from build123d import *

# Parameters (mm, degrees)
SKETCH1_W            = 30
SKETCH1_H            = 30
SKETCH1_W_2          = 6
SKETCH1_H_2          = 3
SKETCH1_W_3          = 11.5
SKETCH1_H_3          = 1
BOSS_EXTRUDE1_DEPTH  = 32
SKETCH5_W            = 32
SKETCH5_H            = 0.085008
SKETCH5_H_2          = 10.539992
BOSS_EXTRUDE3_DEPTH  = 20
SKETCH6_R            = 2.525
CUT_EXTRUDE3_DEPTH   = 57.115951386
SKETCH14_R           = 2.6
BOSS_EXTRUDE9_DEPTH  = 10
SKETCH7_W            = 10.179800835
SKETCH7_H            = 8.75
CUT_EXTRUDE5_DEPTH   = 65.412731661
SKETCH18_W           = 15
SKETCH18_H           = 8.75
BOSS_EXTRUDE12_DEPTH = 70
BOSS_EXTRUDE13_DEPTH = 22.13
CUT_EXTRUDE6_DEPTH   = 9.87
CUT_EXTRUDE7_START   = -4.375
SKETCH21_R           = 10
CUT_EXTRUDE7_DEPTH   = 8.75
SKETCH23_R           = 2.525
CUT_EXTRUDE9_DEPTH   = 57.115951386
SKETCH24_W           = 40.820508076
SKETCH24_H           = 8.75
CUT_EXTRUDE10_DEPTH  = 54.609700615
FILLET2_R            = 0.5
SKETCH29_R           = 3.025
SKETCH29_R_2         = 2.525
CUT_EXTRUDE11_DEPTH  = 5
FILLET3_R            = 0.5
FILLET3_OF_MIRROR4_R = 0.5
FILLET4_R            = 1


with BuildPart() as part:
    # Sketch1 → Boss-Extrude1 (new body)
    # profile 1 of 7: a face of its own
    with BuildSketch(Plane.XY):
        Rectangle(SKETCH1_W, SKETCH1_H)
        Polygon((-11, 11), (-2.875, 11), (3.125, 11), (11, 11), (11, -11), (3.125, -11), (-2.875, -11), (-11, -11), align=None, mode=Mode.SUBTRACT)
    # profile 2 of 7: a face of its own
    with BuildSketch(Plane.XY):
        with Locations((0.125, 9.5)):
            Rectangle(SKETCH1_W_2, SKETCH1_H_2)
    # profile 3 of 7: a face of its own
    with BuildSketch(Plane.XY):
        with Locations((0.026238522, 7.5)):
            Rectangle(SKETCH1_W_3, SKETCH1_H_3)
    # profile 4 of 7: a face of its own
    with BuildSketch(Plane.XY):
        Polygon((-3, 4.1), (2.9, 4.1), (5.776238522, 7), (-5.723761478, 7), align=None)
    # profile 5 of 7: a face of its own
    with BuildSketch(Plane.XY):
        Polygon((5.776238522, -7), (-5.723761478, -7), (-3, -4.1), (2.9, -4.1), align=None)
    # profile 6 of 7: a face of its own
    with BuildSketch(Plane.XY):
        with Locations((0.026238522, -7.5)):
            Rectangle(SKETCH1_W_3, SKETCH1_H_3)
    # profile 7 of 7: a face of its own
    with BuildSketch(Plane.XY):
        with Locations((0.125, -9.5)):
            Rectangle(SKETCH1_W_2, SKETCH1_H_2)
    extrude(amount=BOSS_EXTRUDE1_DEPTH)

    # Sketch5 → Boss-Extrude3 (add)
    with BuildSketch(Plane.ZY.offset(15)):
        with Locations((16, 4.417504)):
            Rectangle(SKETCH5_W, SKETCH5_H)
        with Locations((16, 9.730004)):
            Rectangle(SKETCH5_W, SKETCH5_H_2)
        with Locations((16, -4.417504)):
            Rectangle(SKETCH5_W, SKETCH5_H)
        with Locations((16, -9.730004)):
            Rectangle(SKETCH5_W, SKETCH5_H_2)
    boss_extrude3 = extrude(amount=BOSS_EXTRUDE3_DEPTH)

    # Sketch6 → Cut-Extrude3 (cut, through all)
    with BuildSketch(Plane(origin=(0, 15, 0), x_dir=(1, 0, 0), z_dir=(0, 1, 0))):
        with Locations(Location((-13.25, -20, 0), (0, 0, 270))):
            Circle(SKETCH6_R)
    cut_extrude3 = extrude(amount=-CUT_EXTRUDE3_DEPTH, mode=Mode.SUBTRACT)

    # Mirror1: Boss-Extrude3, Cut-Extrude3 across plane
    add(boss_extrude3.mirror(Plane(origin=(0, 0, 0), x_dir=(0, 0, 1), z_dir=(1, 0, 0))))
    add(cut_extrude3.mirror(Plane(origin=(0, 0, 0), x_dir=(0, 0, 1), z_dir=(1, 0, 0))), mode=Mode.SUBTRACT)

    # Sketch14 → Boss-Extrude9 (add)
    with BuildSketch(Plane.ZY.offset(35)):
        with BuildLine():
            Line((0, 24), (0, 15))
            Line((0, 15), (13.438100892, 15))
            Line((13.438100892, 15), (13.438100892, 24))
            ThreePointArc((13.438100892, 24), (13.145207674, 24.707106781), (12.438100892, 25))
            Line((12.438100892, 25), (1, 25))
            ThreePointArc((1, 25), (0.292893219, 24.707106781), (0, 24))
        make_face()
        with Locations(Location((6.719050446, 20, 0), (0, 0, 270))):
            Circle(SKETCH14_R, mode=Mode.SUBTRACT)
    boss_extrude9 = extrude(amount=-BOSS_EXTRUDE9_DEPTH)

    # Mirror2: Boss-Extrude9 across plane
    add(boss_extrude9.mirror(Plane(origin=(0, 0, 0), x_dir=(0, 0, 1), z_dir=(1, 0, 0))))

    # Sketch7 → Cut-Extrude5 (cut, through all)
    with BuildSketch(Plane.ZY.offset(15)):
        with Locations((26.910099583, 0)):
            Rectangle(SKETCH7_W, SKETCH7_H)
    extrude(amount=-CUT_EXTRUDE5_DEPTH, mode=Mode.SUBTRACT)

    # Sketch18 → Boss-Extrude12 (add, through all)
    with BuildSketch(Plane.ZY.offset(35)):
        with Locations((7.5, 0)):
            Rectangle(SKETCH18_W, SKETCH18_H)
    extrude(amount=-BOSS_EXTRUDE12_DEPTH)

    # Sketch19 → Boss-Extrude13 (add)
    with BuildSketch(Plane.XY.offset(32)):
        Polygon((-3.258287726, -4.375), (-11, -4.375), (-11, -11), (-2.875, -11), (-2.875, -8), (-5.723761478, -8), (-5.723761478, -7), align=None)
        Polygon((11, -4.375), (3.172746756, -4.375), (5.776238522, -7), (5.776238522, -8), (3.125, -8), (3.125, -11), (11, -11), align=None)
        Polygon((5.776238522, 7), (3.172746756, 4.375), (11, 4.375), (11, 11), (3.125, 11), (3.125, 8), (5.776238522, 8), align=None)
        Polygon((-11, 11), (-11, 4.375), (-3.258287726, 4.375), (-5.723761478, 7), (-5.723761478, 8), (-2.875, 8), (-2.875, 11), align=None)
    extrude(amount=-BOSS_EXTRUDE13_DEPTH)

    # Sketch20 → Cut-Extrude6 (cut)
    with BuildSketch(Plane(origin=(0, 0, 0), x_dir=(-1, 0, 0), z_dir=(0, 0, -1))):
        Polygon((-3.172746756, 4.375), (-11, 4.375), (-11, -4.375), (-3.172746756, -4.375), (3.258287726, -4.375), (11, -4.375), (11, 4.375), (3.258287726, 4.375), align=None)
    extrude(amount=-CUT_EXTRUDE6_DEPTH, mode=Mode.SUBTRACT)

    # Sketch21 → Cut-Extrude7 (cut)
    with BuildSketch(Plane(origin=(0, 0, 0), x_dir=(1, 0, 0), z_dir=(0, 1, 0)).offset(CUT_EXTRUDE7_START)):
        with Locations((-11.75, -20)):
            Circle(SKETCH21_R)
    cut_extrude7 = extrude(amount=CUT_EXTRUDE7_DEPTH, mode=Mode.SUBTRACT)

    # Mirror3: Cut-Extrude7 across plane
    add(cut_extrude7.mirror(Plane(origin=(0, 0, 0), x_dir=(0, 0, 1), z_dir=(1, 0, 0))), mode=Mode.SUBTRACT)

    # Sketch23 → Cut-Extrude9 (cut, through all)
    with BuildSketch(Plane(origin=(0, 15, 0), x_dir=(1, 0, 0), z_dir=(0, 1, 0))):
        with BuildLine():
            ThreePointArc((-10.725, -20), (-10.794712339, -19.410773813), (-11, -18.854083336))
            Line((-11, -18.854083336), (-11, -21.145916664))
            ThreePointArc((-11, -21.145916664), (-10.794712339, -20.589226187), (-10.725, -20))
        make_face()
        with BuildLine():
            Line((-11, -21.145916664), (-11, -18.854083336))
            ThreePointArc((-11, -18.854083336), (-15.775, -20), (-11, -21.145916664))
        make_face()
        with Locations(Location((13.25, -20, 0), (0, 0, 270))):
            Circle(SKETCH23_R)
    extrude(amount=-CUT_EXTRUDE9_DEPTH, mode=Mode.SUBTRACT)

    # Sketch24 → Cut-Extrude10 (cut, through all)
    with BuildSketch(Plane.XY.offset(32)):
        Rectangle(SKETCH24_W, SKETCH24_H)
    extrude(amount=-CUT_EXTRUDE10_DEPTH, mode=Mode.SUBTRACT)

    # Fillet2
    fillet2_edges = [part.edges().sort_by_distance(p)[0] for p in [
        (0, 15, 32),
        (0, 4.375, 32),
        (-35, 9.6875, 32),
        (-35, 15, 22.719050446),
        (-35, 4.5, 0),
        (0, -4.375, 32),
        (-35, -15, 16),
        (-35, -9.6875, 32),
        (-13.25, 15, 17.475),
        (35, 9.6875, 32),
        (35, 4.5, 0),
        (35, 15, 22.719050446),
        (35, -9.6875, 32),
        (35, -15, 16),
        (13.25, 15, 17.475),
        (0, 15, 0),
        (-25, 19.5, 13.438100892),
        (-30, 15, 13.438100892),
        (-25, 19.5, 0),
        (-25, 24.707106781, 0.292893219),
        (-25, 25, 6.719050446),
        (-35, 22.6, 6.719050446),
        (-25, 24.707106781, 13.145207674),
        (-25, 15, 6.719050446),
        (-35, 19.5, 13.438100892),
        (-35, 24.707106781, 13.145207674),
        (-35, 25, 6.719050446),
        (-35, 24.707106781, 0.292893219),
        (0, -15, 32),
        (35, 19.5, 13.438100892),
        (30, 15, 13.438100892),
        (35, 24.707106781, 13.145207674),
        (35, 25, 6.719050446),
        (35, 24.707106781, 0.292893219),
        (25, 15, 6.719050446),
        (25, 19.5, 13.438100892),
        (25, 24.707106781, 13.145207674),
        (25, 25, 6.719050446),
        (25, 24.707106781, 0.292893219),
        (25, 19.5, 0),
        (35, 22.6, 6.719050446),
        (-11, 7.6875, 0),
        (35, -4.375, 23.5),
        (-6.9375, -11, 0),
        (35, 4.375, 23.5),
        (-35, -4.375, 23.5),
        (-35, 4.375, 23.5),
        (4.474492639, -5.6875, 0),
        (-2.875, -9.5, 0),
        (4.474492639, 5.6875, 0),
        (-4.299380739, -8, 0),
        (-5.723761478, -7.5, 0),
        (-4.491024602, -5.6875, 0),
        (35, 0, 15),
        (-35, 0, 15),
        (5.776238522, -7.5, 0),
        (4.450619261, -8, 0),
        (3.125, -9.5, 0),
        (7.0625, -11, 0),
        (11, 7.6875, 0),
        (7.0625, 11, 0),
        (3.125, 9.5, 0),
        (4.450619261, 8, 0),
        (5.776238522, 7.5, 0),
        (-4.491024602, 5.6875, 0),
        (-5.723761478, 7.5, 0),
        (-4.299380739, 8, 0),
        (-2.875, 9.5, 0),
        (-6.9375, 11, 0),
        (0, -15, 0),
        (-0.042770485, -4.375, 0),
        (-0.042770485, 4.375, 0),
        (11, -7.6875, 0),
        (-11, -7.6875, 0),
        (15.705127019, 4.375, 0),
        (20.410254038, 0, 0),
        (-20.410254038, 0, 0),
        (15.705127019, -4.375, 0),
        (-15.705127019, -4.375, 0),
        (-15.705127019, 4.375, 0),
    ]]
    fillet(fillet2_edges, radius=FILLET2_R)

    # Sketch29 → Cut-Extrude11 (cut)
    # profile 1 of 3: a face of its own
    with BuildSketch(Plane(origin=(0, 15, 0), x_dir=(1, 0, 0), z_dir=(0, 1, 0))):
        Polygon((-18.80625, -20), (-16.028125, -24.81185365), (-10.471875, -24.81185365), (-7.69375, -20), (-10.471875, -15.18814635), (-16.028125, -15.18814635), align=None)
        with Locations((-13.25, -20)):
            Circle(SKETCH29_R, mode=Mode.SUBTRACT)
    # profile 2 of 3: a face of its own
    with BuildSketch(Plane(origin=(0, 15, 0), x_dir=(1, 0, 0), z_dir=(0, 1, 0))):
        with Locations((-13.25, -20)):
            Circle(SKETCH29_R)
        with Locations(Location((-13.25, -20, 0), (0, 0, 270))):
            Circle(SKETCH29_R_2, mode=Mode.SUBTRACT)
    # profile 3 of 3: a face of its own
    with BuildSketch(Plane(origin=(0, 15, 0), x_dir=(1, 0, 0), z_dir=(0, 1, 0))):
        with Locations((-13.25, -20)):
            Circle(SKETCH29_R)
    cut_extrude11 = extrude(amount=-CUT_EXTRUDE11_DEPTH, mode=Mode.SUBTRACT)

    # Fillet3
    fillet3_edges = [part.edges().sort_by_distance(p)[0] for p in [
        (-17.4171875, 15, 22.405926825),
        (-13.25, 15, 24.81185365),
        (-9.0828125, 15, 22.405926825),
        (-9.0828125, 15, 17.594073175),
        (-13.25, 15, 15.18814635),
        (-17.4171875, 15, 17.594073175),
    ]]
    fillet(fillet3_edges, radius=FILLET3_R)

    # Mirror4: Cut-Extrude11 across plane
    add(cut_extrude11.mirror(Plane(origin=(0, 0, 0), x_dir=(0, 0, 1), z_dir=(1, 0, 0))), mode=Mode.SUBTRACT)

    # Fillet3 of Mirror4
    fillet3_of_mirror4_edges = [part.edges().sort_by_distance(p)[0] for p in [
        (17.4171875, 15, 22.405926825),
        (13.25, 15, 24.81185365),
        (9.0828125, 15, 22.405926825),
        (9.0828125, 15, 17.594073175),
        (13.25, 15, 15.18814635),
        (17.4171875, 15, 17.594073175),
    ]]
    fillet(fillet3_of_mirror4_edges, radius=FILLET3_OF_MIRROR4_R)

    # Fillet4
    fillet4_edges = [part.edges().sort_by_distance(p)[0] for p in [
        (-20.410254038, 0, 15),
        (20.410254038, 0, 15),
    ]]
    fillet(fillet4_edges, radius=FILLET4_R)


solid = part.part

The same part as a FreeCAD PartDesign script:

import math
import FreeCAD as App
import Part
import Sketcher

V = App.Vector
Q = App.Units.Quantity


def edges_at(feature, points):
    """Names of the edges that pass closest to the given points."""
    edges = feature.Shape.Edges
    near = lambda p: min(range(len(edges)), key=lambda i: edges[i].distToShape(Part.Vertex(*p))[0])
    return sorted({f"Edge{near(p) + 1}" for p in points})


def add_polygon(sketch, points):
    """Adds a closed chain of lines whose ends are joined by coincident constraints."""
    first, n = sketch.GeometryCount, len(points)
    for a, b in zip(points, points[1:] + points[:1]):
        sketch.addGeometry(Part.LineSegment(App.Vector(*a, 0), App.Vector(*b, 0)), False)
    for i in range(n):
        sketch.addConstraint(Sketcher.Constraint("Coincident", first + i, 2, first + (i + 1) % n, 1))

doc = App.newDocument("Part")
body = doc.addObject("PartDesign::Body", "Body")

# Sketch on XY plane
sketch1 = body.newObject("Sketcher::SketchObject", "Sketch")
sketch1.AttachmentSupport = (doc.getObject("XY_Plane"), [""])
sketch1.MapMode = "FlatFace"
add_polygon(sketch1, [(-15, 15), (-15, -15), (15, -15), (15, 15)])  # lines 0-3
add_polygon(sketch1, [(-11, -11), (-11, 11), (-2.9, 11), (-2.9, 8), (-5.7, 8), (-5.7, 7), (-3, 4.1), (2.9, 4.1), (5.8, 7), (5.8, 8), (3.1, 8), (3.1, 11), (11, 11), (11, -11), (3.1, -11), (3.1, -8), (5.8, -8), (5.8, -7), (2.9, -4.1), (-3, -4.1), (-5.7, -7), (-5.7, -8), (-2.9, -8), (-2.9, -11)])  # lines 4-27
sketch1.addConstraint([
    Sketcher.Constraint("Vertical", 0),
    Sketcher.Constraint("Horizontal", 1),
    Sketcher.Constraint("Vertical", 2),
    Sketcher.Constraint("Horizontal", 3),
    Sketcher.Constraint("Vertical", 4),
    Sketcher.Constraint("Horizontal", 5),
    Sketcher.Constraint("Vertical", 6),
    Sketcher.Constraint("Horizontal", 7),
    Sketcher.Constraint("Vertical", 8),
    Sketcher.Constraint("Horizontal", 10),
    Sketcher.Constraint("Vertical", 12),
    Sketcher.Constraint("Horizontal", 13),
    Sketcher.Constraint("Vertical", 14),
    Sketcher.Constraint("Horizontal", 15),
    Sketcher.Constraint("Vertical", 16),
    Sketcher.Constraint("Horizontal", 17),
    Sketcher.Constraint("Vertical", 18),
    Sketcher.Constraint("Horizontal", 19),
    Sketcher.Constraint("Vertical", 20),
    Sketcher.Constraint("Horizontal", 22),
    Sketcher.Constraint("Vertical", 24),
    Sketcher.Constraint("Horizontal", 25),
    Sketcher.Constraint("Vertical", 26),
    Sketcher.Constraint("Horizontal", 27),
    Sketcher.Constraint("Symmetric", 0, 2, 2, 2, -1, 1),
    Sketcher.Constraint("Symmetric", 4, 2, 16, 2, -1, 1),
    Sketcher.Constraint("Symmetric", 14, 2, 17, 2, -1),
    Sketcher.Constraint("Symmetric", 12, 2, 19, 2, -1),
    Sketcher.Constraint("Symmetric", 10, 2, 21, 2, -1),
    Sketcher.Constraint("Symmetric", 8, 2, 23, 2, -1),
    Sketcher.Constraint("Symmetric", 6, 2, 25, 2, -1),
    Sketcher.Constraint("Horizontal", 8, 2, 11, 2),
    Sketcher.Constraint("Horizontal", 7, 2, 12, 2),
    Sketcher.Constraint("Horizontal", 20, 2, 23, 2),
    Sketcher.Constraint("Horizontal", 17, 2, 26, 2),
    Sketcher.Constraint("Vertical", 9, 2, 22, 2),
    Sketcher.Constraint("Equal", 3, 0),
    Sketcher.Constraint("DistanceX", 1, 1, 1, 2, 30.0),
    Sketcher.Constraint("DistanceY", 4, 1, 4, 2, 22.0),
    Sketcher.Constraint("DistanceY", 6, 2, 6, 1, 3.0),
    Sketcher.Constraint("DistanceY", 8, 2, 8, 1, 1.0),
    Sketcher.Constraint("DistanceX", 10, 1, 10, 2, 5.9),
    Sketcher.Constraint("DistanceX", 4, 2, -1, 1, 11.0),
    Sketcher.Constraint("DistanceX", 9, 2, -1, 1, 3.0),
    Sketcher.Constraint("DistanceX", 6, 2, 13, 2, 6.0),
    Sketcher.Constraint("DistanceY", -1, 1, 9, 2, 4.1),
    Sketcher.Constraint("DistanceX", 8, 2, 11, 2, 11.5),
    Sketcher.Constraint("DistanceX", 5, 1, 5, 2, 8.125),
    Sketcher.Constraint("DistanceX", 7, 2, 7, 1, 2.848761),
])
pad1 = body.newObject("PartDesign::Pad", "Pad")
pad1.Profile = sketch1
pad1.Length = 32

# Sketch on YZ plane
sketch2 = body.newObject("Sketcher::SketchObject", "Sketch001")
sketch2.AttachmentSupport = (doc.getObject("YZ_Plane"), [""])
sketch2.MapMode = "FlatFace"
sketch2.AttachmentOffset = App.Placement(V(0, 0, -15), App.Rotation())
add_polygon(sketch2, [(4, 0), (4, 32), (15, 32), (15, 0)])  # lines 0-3
add_polygon(sketch2, [(-4, 0), (-15, 0), (-15, 32), (-4, 32)])  # lines 4-7
sketch2.addConstraint([
    Sketcher.Constraint("Vertical", 0),
    Sketcher.Constraint("Horizontal", 1),
    Sketcher.Constraint("Vertical", 2),
    Sketcher.Constraint("Horizontal", 3),
    Sketcher.Constraint("Horizontal", 4),
    Sketcher.Constraint("Vertical", 5),
    Sketcher.Constraint("Horizontal", 6),
    Sketcher.Constraint("Vertical", 7),
    Sketcher.Constraint("Symmetric", 2, 2, 4, 2, -1, 1),
    Sketcher.Constraint("Symmetric", 0, 2, 6, 2, -2),
    Sketcher.Constraint("PointOnObject", 2, 2, -1),
    Sketcher.Constraint("DistanceY", 0, 1, 0, 2, 32.0),
    Sketcher.Constraint("DistanceX", -1, 1, 1, 2, 15.0),
    Sketcher.Constraint("DistanceX", 1, 1, 1, 2, 10.625),
])
pad2 = body.newObject("PartDesign::Pad", "Pad001")
pad2.Profile = sketch2
pad2.Length = 20
pad2.Reversed = True

# Sketch on XZ plane
sketch3 = body.newObject("Sketcher::SketchObject", "Sketch002")
sketch3.AttachmentSupport = (doc.getObject("XZ_Plane"), [""])
sketch3.MapMode = "FlatFace"
sketch3.AttachmentOffset = App.Placement(V(0, 0, -15), App.Rotation())
sketch3.addGeometry(Part.Circle(V(-13.2, 20, 0), V(0, 0, 1), 2.5), False)
sketch3.addConstraint([
    Sketcher.Constraint("Diameter", 0, 5.05),
    Sketcher.Constraint("DistanceY", -1, 1, 0, 3, 20.0),
    Sketcher.Constraint("DistanceX", 0, 3, -1, 1, 13.25),
])
pocket1 = body.newObject("PartDesign::Pocket", "Pocket")
pocket1.Profile = sketch3
pocket1.Type = "ThroughAll"
pocket1.Reversed = True
doc.recompute()

mirrored = body.newObject("PartDesign::Mirrored", "Mirrored")
mirrored.Originals = [pad2, pocket1]
mirrored.MirrorPlane = (doc.getObject("YZ_Plane"), [""])
body.Tip = mirrored

# Sketch on YZ plane
sketch4 = body.newObject("Sketcher::SketchObject", "Sketch003")
sketch4.AttachmentSupport = (doc.getObject("YZ_Plane"), [""])
sketch4.MapMode = "FlatFace"
sketch4.AttachmentOffset = App.Placement(V(0, 0, -35), App.Rotation())
sketch4.addGeometry([
    Part.LineSegment(V(24, 0, 0), V(15, 0, 0)),  # 0
    Part.LineSegment(V(15, 0, 0), V(15, 13.4, 0)),  # 1
    Part.LineSegment(V(15, 13.4, 0), V(24, 13.4, 0)),  # 2
    Part.ArcOfCircle(Part.Circle(V(24, 12.4, 0), V(0, 0, 1), 1), math.radians(0), math.radians(90)),  # 3
    Part.LineSegment(V(25, 12.4, 0), V(25, 1, 0)),  # 4
    Part.ArcOfCircle(Part.Circle(V(24, 1, 0), V(0, 0, 1), 1), math.radians(-90), math.radians(0)),  # 5
    Part.Circle(V(20, 6.7, 0), V(0, 0, 1), 2.6),  # 6
], False)
sketch4.addConstraint([
    Sketcher.Constraint("Coincident", 0, 2, 1, 1),
    Sketcher.Constraint("Coincident", 1, 2, 2, 1),
    Sketcher.Constraint("Tangent", 2, 2, 3, 2),
    Sketcher.Constraint("Tangent", 3, 1, 4, 1),
    Sketcher.Constraint("Tangent", 4, 2, 5, 2),
    Sketcher.Constraint("Tangent", 5, 1, 0, 1),
    Sketcher.Constraint("Horizontal", 0),
    Sketcher.Constraint("Vertical", 1),
    Sketcher.Constraint("Horizontal", 2),
    Sketcher.Constraint("Vertical", 4),
    Sketcher.Constraint("Equal", 3, 5),
    Sketcher.Constraint("PointOnObject", 0, 2, -1),
    Sketcher.Constraint("Radius", 3, 1.0),
    Sketcher.Constraint("Diameter", 6, 5.2),
    Sketcher.Constraint("DistanceX", 0, 2, 0, 1, 9.0),
    Sketcher.Constraint("DistanceX", -1, 1, 3, 3, 24.0),
    Sketcher.Constraint("DistanceX", -1, 1, 6, 3, 20.0),
    Sketcher.Constraint("DistanceY", 1, 1, 1, 2, 13.438101),
    Sketcher.Constraint("DistanceY", -1, 1, 6, 3, 6.71905),
])
pad3 = body.newObject("PartDesign::Pad", "Pad002")
pad3.Profile = sketch4
pad3.Length = 10
doc.recompute()

mirrored2 = body.newObject("PartDesign::Mirrored", "Mirrored001")
mirrored2.Originals = [pad3]
mirrored2.MirrorPlane = (doc.getObject("YZ_Plane"), [""])
body.Tip = mirrored2

# Sketch on YZ plane
sketch5 = body.newObject("Sketcher::SketchObject", "Sketch004")
sketch5.AttachmentSupport = (doc.getObject("YZ_Plane"), [""])
sketch5.MapMode = "FlatFace"
sketch5.AttachmentOffset = App.Placement(V(0, 0, -15), App.Rotation())
add_polygon(sketch5, [(4, 22), (-4, 22), (-4, 32), (4, 32)])  # lines 0-3
sketch5.addConstraint([
    Sketcher.Constraint("Horizontal", 0),
    Sketcher.Constraint("Vertical", 1),
    Sketcher.Constraint("Horizontal", 2),
    Sketcher.Constraint("Vertical", 3),
    Sketcher.Constraint("DistanceY", -1, 1, 1, 2, 32.0),
    Sketcher.Constraint("DistanceX", 0, 2, 0, 1, 8.75),
    Sketcher.Constraint("DistanceY", 1, 1, 1, 2, 10.179801),
    Sketcher.Constraint("DistanceX", 0, 2, -1, 1, 4.375),
])
pocket2 = body.newObject("PartDesign::Pocket", "Pocket001")
pocket2.Profile = sketch5
pocket2.Type = "ThroughAll"
pocket2.Reversed = True

# Sketch on YZ plane
sketch6 = body.newObject("Sketcher::SketchObject", "Sketch005")
sketch6.AttachmentSupport = (doc.getObject("YZ_Plane"), [""])
sketch6.MapMode = "FlatFace"
sketch6.AttachmentOffset = App.Placement(V(0, 0, -35), App.Rotation())
add_polygon(sketch6, [(4, 0), (-4, 0), (-4, 15), (4, 15)])  # lines 0-3
sketch6.addConstraint([
    Sketcher.Constraint("Horizontal", 0),
    Sketcher.Constraint("Vertical", 1),
    Sketcher.Constraint("Horizontal", 2),
    Sketcher.Constraint("Vertical", 3),
    Sketcher.Constraint("Symmetric", 0, 2, 3, 2, -1, 1),
    Sketcher.Constraint("DistanceY", 1, 1, 1, 2, 15.0),
    Sketcher.Constraint("DistanceX", 0, 2, 0, 1, 8.75),
])
pad4 = body.newObject("PartDesign::Pad", "Pad003")
pad4.Profile = sketch6
pad4.Length = 70

# Sketch on XY plane
sketch7 = body.newObject("Sketcher::SketchObject", "Sketch006")
sketch7.AttachmentSupport = (doc.getObject("XY_Plane"), [""])
sketch7.MapMode = "FlatFace"
sketch7.AttachmentOffset = App.Placement(V(0, 0, 32), App.Rotation())
add_polygon(sketch7, [(-3.3, -4.4), (-11, -4.4), (-11, -11), (-2.9, -11), (-2.9, -8), (-5.7, -8), (-5.7, -7)])  # lines 0-6
add_polygon(sketch7, [(11, -4.4), (3.2, -4.4), (5.8, -7), (5.8, -8), (3.1, -8), (3.1, -11), (11, -11)])  # lines 7-13
add_polygon(sketch7, [(5.8, 7), (3.2, 4.4), (11, 4.4), (11, 11), (3.1, 11), (3.1, 8), (5.8, 8)])  # lines 14-20
add_polygon(sketch7, [(-11, 11), (-11, 4.4), (-3.3, 4.4), (-5.7, 7), (-5.7, 8), (-2.9, 8), (-2.9, 11)])  # lines 21-27
sketch7.addConstraint([
    Sketcher.Constraint("Horizontal", 0),
    Sketcher.Constraint("Vertical", 1),
    Sketcher.Constraint("Horizontal", 2),
    Sketcher.Constraint("Vertical", 3),
    Sketcher.Constraint("Horizontal", 4),
    Sketcher.Constraint("Vertical", 5),
    Sketcher.Constraint("Horizontal", 7),
    Sketcher.Constraint("Vertical", 9),
    Sketcher.Constraint("Horizontal", 10),
    Sketcher.Constraint("Vertical", 11),
    Sketcher.Constraint("Horizontal", 12),
    Sketcher.Constraint("Vertical", 13),
    Sketcher.Constraint("Horizontal", 15),
    Sketcher.Constraint("Vertical", 16),
    Sketcher.Constraint("Horizontal", 17),
    Sketcher.Constraint("Vertical", 18),
    Sketcher.Constraint("Horizontal", 19),
    Sketcher.Constraint("Vertical", 20),
    Sketcher.Constraint("Vertical", 21),
    Sketcher.Constraint("Horizontal", 22),
    Sketcher.Constraint("Vertical", 24),
    Sketcher.Constraint("Horizontal", 25),
    Sketcher.Constraint("Vertical", 26),
    Sketcher.Constraint("Horizontal", 27),
    Sketcher.Constraint("Symmetric", 0, 2, 15, 2, -1, 1),
    Sketcher.Constraint("Symmetric", 13, 2, 21, 2, -1, 1),
    Sketcher.Constraint("Symmetric", 1, 2, 12, 2, -2),
    Sketcher.Constraint("Symmetric", 7, 2, 14, 2, -1),
    Sketcher.Constraint("Symmetric", 11, 2, 17, 2, -1),
    Sketcher.Constraint("Symmetric", 9, 2, 19, 2, -1),
    Sketcher.Constraint("Symmetric", 5, 2, 23, 2, -1),
    Sketcher.Constraint("Symmetric", 3, 2, 25, 2, -1),
    Sketcher.Constraint("Horizontal", 5, 2, 8, 2),
    Sketcher.Constraint("Horizontal", 4, 2, 9, 2),
    Sketcher.Constraint("Horizontal", 20, 2, 23, 2),
    Sketcher.Constraint("Horizontal", 17, 2, 26, 2),
    Sketcher.Constraint("Vertical", 6, 2, 22, 2),
    Sketcher.Constraint("DistanceY", 3, 1, 3, 2, 3.0),
    Sketcher.Constraint("DistanceY", 5, 1, 5, 2, 1.0),
    Sketcher.Constraint("DistanceX", 0, 2, -1, 1, 11.0),
    Sketcher.Constraint("DistanceY", 1, 2, -1, 1, 11.0),
    Sketcher.Constraint("DistanceX", 3, 2, 10, 2, 6.0),
    Sketcher.Constraint("DistanceX", 5, 2, 8, 2, 11.5),
    Sketcher.Constraint("DistanceX", 2, 1, 2, 2, 8.125),
    Sketcher.Constraint("DistanceY", 1, 2, 1, 1, 6.625),
    Sketcher.Constraint("DistanceX", 4, 2, 4, 1, 2.848761),
    Sketcher.Constraint("DistanceX", 0, 2, 0, 1, 7.741712),
    Sketcher.Constraint("DistanceX", 7, 2, 7, 1, 7.827253),
])
pad5 = body.newObject("PartDesign::Pad", "Pad004")
pad5.Profile = sketch7
pad5.Length = 22.13
pad5.Reversed = True

# Sketch on XY plane
sketch8 = body.newObject("Sketcher::SketchObject", "Sketch007")
sketch8.AttachmentSupport = (doc.getObject("XY_Plane"), [""])
sketch8.MapMode = "FlatFace"
add_polygon(sketch8, [(11, 4), (11, -4), (-11, -4), (-11, 4)])  # lines 0-3
sketch8.addConstraint([
    Sketcher.Constraint("Vertical", 0),
    Sketcher.Constraint("Horizontal", 1),
    Sketcher.Constraint("Vertical", 2),
    Sketcher.Constraint("Horizontal", 3),
    Sketcher.Constraint("Symmetric", 0, 2, 2, 2, -1, 1),
    Sketcher.Constraint("DistanceX", 1, 2, 1, 1, 22.0),
    Sketcher.Constraint("DistanceY", 0, 2, 0, 1, 8.75),
])
pocket3 = body.newObject("PartDesign::Pocket", "Pocket002")
pocket3.Profile = sketch8
pocket3.Length = 9.87
pocket3.Reversed = True

# Sketch on XZ plane
sketch9 = body.newObject("Sketcher::SketchObject", "Sketch008")
sketch9.AttachmentSupport = (doc.getObject("XZ_Plane"), [""])
sketch9.MapMode = "FlatFace"
sketch9.AttachmentOffset = App.Placement(V(0, 0, 4.375), App.Rotation())
sketch9.addGeometry(Part.Circle(V(-12, 20, 0), V(0, 0, 1), 10), False)
sketch9.addConstraint([
    Sketcher.Constraint("Diameter", 0, 20.0),
    Sketcher.Constraint("DistanceY", -1, 1, 0, 3, 20.0),
    Sketcher.Constraint("DistanceX", 0, 3, -1, 1, 11.75),
])
pocket4 = body.newObject("PartDesign::Pocket", "Pocket003")
pocket4.Profile = sketch9
pocket4.Length = 8.75
doc.recompute()

mirrored3 = body.newObject("PartDesign::Mirrored", "Mirrored002")
mirrored3.Originals = [pocket4]
mirrored3.MirrorPlane = (doc.getObject("YZ_Plane"), [""])
body.Tip = mirrored3

# Sketch on XZ plane
sketch10 = body.newObject("Sketcher::SketchObject", "Sketch009")
sketch10.AttachmentSupport = (doc.getObject("XZ_Plane"), [""])
sketch10.MapMode = "FlatFace"
sketch10.AttachmentOffset = App.Placement(V(0, 0, -15), App.Rotation())
sketch10.addGeometry([
    Part.ArcOfCircle(Part.Circle(V(-13.3, 20, 0), V(0, 0, 1), 2.5), math.radians(-27), math.radians(0)),
    Part.ArcOfCircle(Part.Circle(V(-13.2, 20, 0), V(0, 0, 1), 2.5), math.radians(27), math.radians(333)),
    Part.ArcOfCircle(Part.Circle(V(-13.3, 20, 0), V(0, 0, 1), 2.5), math.radians(0), math.radians(27)),
    Part.Circle(V(13.2, 20, 0), V(0, 0, 1), 2.5),
], False)
sketch10.addConstraint([
    Sketcher.Constraint("Tangent", 0, 1, 1, 2),
    Sketcher.Constraint("Tangent", 1, 1, 2, 2),
    Sketcher.Constraint("Tangent", 2, 1, 0, 2),
    Sketcher.Constraint("Equal", 2, 3),
    Sketcher.Constraint("Symmetric", 0, 3, 3, 3, -2),
    Sketcher.Constraint("Horizontal", 3, 3, 2, 1),
    Sketcher.Constraint("Vertical", 0, 1, 1, 1),
    Sketcher.Constraint("Diameter", 3, 5.05),
    Sketcher.Constraint("DistanceY", -1, 1, 0, 3, 20.0),
    Sketcher.Constraint("DistanceX", 0, 1, -1, 1, 11.0),
    Sketcher.Constraint("DistanceX", 1, 3, 3, 3, 26.5),
])
pocket5 = body.newObject("PartDesign::Pocket", "Pocket004")
pocket5.Profile = sketch10
pocket5.Type = "ThroughAll"
pocket5.Reversed = True

# Sketch on XY plane
sketch11 = body.newObject("Sketcher::SketchObject", "Sketch010")
sketch11.AttachmentSupport = (doc.getObject("XY_Plane"), [""])
sketch11.MapMode = "FlatFace"
sketch11.AttachmentOffset = App.Placement(V(0, 0, 32), App.Rotation())
add_polygon(sketch11, [(-20, 4), (-20, -4), (20, -4), (20, 4)])  # lines 0-3
sketch11.addConstraint([
    Sketcher.Constraint("Vertical", 0),
    Sketcher.Constraint("Horizontal", 1),
    Sketcher.Constraint("Vertical", 2),
    Sketcher.Constraint("Horizontal", 3),
    Sketcher.Constraint("Symmetric", 0, 2, 2, 2, -1, 1),
    Sketcher.Constraint("DistanceY", 0, 2, 0, 1, 8.75),
    Sketcher.Constraint("DistanceX", 1, 1, 1, 2, 40.820508),
])
pocket6 = body.newObject("PartDesign::Pocket", "Pocket005")
pocket6.Profile = sketch11
pocket6.Type = "ThroughAll"
doc.recompute()

fillet = body.newObject("PartDesign::Fillet", "Fillet")
fillet.Base = (pocket6, edges_at(pocket6, [
    (0, 15, 32),
    (-0.043, 4.375, 32),
    (-35, 9.688, 32),
    (-35, 15, 22.719),
    (-35, 4.5, 0),
    (-12, -4.375, 32),
    (-35, -15, 16),
    (-35, -9.688, 32),
    (-15.403, 15, 18.68),
    (35, 9.688, 32),
    (35, 4.5, 0),
    (35, 15, 22.719),
    (35, -9.688, 32),
    (35, -15, 16),
    (13.25, 15, 17.475),
    (0, 15, 0),
    (-25, 19.5, 13.438),
    (-30, 15, 13.438),
    (-25, 19.5, 0),
    (-25, 24.707, 0.293),
    (-25, 25, 6.719),
    (-35, 22.6, 6.719),
    (-25, 24.707, 13.145),
    (-25, 15, 6.719),
    (-35, 19.5, 13.438),
    (-35, 24.707, 13.145),
    (-35, 25, 6.719),
    (-35, 24.707, 0.293),
    (0, -15, 32),
    (35, 19.5, 13.438),
    (30, 15, 13.438),
    (35, 24.707, 13.145),
    (35, 25, 6.719),
    (35, 24.707, 0.293),
    (25, 15, 6.719),
    (25, 19.5, 13.438),
    (25, 24.707, 13.145),
    (25, 25, 6.719),
    (25, 24.707, 0.293),
    (25, 19.5, 0),
    (35, 22.6, 6.719),
    (-11, 7.688, 0),
    (35, -4.375, 23.5),
    (-6.938, -11, 0),
    (35, 4.375, 23.5),
    (-35, -4.375, 23.5),
    (-35, 4.375, 23.5),
    (4.474, -5.688, 0),
    (-2.875, -9.5, 0),
    (4.474, 5.688, 0),
    (-4.299, -8, 0),
    (-5.724, -7.5, 0),
    (-4.491, -5.688, 0),
    (35, 0, 15),
    (-35, 0, 15),
    (5.776, -7.5, 0),
    (4.451, -8, 0),
    (3.125, -9.5, 0),
    (7.062, -11, 0),
    (11, 7.688, 0),
    (7.062, 11, 0),
    (3.125, 9.5, 0),
    (4.451, 8, 0),
    (5.776, 7.5, 0),
    (-4.491, 5.688, 0),
    (-5.724, 7.5, 0),
    (-4.299, 8, 0),
    (-2.875, 9.5, 0),
    (-6.938, 11, 0),
    (0, -15, 0),
    (-0.043, -4.375, 0),
    (-0.043, 4.375, 0),
    (11, -7.688, 0),
    (-11, -7.688, 0),
    (15.705, 4.375, 0),
    (20.41, 0, 0),
    (-20.41, 0, 0),
    (15.705, -4.375, 0),
    (-15.705, -4.375, 0),
    (-15.705, 4.375, 0),
]))
fillet.Radius = 0.5

# Sketch on XZ plane
sketch12 = body.newObject("Sketcher::SketchObject", "Sketch011")
sketch12.AttachmentSupport = (doc.getObject("XZ_Plane"), [""])
sketch12.MapMode = "FlatFace"
sketch12.AttachmentOffset = App.Placement(V(0, 0, -15), App.Rotation())
add_polygon(sketch12, [(-19, 20), (-16, 25), (-10, 25), (-8, 20), (-10, 15), (-16, 15)])  # lines 0-5
sketch12.addConstraint([
    Sketcher.Constraint("Horizontal", 1),
    Sketcher.Constraint("Horizontal", 4),
    Sketcher.Constraint("Parallel", 0, 3),
    Sketcher.Constraint("Parallel", 2, 5),
    Sketcher.Constraint("Horizontal", 2, 2, 5, 2),
    Sketcher.Constraint("Vertical", 1, 2, 3, 2),
    Sketcher.Constraint("Vertical", 0, 2, 4, 2),
    Sketcher.Constraint("Angle", 0, Q("60 deg")),
    Sketcher.Constraint("DistanceY", -1, 1, 2, 2, 20.0),
    Sketcher.Constraint("DistanceX", 1, 1, 1, 2, 5.55625),
    Sketcher.Constraint("DistanceX", 5, 2, 2, 2, 11.1125),
    Sketcher.Constraint("DistanceX", 2, 2, -1, 1, 7.69375),
])
pocket7 = body.newObject("PartDesign::Pocket", "Pocket006")
pocket7.Profile = sketch12
pocket7.Length = 5
pocket7.Reversed = True
doc.recompute()

fillet2 = body.newObject("PartDesign::Fillet", "Fillet001")
fillet2.Base = (pocket7, edges_at(pocket7, [
    (-17.417, 15, 22.406),
    (-13.25, 15, 24.812),
    (-9.083, 15, 22.406),
    (-9.083, 15, 17.594),
    (-13.25, 15, 15.188),
    (-17.417, 15, 17.594),
]))
fillet2.Radius = 0.5
doc.recompute()

mirrored4 = body.newObject("PartDesign::Mirrored", "Mirrored003")
mirrored4.Originals = [pocket7]
mirrored4.MirrorPlane = (doc.getObject("YZ_Plane"), [""])
body.Tip = mirrored4
doc.recompute()

fillet3 = body.newObject("PartDesign::Fillet", "Fillet002")
fillet3.Base = (mirrored4, edges_at(mirrored4, [
    (17.417, 15, 22.406),
    (13.25, 15, 24.812),
    (9.083, 15, 22.406),
    (9.083, 15, 17.594),
    (13.25, 15, 15.188),
    (17.417, 15, 17.594),
]))
fillet3.Radius = 0.5
doc.recompute()

fillet4 = body.newObject("PartDesign::Fillet", "Fillet003")
fillet4.Base = (fillet3, edges_at(fillet3, [(-20.41, 0, 15), (20.41, 0, 15)]))
fillet4.Radius = 1

doc.recompute()
